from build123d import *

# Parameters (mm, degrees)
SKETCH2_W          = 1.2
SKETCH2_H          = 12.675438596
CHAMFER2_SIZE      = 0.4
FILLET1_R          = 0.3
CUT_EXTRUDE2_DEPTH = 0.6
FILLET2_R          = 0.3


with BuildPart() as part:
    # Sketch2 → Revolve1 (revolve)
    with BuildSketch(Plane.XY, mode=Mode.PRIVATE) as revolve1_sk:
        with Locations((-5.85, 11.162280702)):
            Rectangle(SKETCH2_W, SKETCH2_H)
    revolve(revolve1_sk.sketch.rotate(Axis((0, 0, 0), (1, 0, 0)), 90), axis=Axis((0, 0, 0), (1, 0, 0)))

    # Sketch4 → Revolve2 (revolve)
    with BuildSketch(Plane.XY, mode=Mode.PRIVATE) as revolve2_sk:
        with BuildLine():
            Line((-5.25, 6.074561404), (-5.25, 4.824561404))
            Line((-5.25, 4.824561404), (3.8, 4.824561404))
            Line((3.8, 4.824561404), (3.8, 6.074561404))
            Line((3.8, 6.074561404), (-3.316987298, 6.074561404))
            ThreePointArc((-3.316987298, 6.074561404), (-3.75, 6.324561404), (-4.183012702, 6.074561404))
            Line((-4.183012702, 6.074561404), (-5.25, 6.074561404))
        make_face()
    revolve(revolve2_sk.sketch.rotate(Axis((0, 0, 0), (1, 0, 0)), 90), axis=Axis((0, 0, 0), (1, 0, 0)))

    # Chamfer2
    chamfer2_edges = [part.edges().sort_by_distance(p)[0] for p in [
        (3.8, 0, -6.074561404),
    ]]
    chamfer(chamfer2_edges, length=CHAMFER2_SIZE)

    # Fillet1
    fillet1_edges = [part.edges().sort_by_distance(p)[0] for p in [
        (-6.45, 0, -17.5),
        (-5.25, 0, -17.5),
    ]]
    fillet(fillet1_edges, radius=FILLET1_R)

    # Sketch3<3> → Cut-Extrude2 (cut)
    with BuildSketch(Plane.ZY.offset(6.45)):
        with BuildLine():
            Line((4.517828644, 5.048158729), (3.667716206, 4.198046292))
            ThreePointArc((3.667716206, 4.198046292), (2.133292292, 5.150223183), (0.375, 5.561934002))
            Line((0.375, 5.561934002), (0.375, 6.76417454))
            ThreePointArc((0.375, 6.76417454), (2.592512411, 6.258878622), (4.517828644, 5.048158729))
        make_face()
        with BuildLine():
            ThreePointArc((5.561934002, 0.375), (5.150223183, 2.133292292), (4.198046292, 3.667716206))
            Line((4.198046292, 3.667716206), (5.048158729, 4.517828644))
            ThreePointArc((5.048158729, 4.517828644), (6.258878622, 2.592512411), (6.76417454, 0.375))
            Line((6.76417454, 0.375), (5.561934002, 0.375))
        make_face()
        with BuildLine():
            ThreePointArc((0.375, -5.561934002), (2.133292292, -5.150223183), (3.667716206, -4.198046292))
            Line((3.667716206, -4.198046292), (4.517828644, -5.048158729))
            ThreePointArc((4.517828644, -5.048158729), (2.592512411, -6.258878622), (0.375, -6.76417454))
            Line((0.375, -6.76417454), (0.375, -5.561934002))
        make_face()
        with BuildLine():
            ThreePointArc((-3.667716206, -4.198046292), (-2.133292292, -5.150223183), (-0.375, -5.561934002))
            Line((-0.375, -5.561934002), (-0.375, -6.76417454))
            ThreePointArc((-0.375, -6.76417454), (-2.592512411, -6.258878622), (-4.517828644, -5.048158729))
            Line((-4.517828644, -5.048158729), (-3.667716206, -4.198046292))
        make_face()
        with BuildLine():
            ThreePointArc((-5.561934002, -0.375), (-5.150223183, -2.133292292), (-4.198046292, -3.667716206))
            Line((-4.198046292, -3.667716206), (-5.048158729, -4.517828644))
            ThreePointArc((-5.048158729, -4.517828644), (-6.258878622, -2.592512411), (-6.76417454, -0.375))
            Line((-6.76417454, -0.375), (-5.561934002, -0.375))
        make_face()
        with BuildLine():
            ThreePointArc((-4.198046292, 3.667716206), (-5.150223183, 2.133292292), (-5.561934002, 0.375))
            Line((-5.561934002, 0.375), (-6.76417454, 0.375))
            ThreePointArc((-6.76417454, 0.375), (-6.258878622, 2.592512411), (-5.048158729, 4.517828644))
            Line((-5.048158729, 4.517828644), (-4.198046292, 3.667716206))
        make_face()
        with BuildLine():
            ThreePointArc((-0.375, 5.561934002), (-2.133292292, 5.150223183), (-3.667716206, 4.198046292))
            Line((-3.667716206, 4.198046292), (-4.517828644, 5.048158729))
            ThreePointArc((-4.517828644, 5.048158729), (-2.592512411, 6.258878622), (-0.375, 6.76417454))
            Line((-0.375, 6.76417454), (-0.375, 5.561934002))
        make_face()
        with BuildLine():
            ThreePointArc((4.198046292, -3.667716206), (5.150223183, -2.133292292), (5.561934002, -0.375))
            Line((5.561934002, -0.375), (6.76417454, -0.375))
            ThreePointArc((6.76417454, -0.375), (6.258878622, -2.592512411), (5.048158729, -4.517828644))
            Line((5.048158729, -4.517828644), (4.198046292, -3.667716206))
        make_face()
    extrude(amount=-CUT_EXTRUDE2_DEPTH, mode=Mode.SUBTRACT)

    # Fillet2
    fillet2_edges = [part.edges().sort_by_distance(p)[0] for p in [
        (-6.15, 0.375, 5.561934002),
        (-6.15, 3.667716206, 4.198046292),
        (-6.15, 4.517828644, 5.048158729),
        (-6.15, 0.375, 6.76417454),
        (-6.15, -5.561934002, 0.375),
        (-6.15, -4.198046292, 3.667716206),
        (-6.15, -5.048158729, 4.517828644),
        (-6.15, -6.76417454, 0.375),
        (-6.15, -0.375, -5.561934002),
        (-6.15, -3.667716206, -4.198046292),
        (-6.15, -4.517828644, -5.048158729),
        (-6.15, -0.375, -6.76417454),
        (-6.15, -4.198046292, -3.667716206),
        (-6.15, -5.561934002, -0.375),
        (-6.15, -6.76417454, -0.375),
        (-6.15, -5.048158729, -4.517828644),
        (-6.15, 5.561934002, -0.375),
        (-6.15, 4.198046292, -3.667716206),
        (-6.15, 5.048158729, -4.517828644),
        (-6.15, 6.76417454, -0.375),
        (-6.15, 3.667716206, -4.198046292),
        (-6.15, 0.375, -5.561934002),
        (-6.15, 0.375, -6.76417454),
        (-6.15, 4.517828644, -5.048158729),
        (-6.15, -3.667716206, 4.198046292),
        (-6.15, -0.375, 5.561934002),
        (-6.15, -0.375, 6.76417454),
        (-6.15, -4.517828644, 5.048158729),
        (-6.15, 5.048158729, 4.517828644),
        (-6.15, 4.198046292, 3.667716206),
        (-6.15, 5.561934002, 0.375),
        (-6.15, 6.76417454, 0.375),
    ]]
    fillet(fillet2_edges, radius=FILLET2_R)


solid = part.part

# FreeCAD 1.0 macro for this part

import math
import FreeCAD as App
import Part
import Sketcher

V = App.Vector


def edges_at(feature, points):
    """Names of the edges that pass closest to the given points."""
    edges = feature.Shape.Edges
    near = lambda p: min(range(len(edges)), key=lambda i: edges[i].distToShape(Part.Vertex(*p))[0])
    return sorted({f"Edge{near(p) + 1}" for p in points})


def add_polygon(sketch, points):
    """Adds a closed chain of lines whose ends are joined by coincident constraints."""
    first, n = sketch.GeometryCount, len(points)
    for a, b in zip(points, points[1:] + points[:1]):
        sketch.addGeometry(Part.LineSegment(App.Vector(*a, 0), App.Vector(*b, 0)), False)
    for i in range(n):
        sketch.addConstraint(Sketcher.Constraint("Coincident", first + i, 2, first + (i + 1) % n, 1))

doc = App.newDocument("Part")
body = doc.addObject("PartDesign::Body", "Body")

# Sketch on XY plane
sketch1 = doc.addObject("Sketcher::SketchObject", "Sketch")
body.addObject(sketch1)
sketch1.AttachmentSupport = (doc.XY_Plane, [""])
sketch1.MapMode = "FlatFace"
add_polygon(sketch1, [(-6.5, 17.5), (-6.5, 4.8), (-5.2, 4.8), (-5.2, 17.5)])  # lines 0-3
sketch1.addConstraint(Sketcher.Constraint("Vertical", 0))
sketch1.addConstraint(Sketcher.Constraint("Horizontal", 1))
sketch1.addConstraint(Sketcher.Constraint("Vertical", 2))
sketch1.addConstraint(Sketcher.Constraint("Horizontal", 3))
sketch1.addConstraint(Sketcher.Constraint("DistanceX", 1, 1, 1, 2, 1.2))
sketch1.addConstraint(Sketcher.Constraint("DistanceY", -1, 1, 2, 2, 17.5))
sketch1.addConstraint(Sketcher.Constraint("DistanceX", 0, 2, -1, 1, 6.45))
sketch1.addConstraint(Sketcher.Constraint("DistanceY", 0, 2, 0, 1, 12.675439))
revolution = doc.addObject("PartDesign::Revolution", "Revolution")
body.addObject(revolution)
revolution.Profile = sketch1
revolution.ReferenceAxis = (sketch1, ["H_Axis"])
revolution.Angle = 360

# Sketch on XY plane
sketch2 = doc.addObject("Sketcher::SketchObject", "Sketch001")
body.addObject(sketch2)
sketch2.AttachmentSupport = (doc.XY_Plane, [""])
sketch2.MapMode = "FlatFace"
sketch2.addGeometry(Part.LineSegment(V(-5.2, 6.1, 0), V(-5.2, 4.8, 0)), False)
sketch2.addGeometry(Part.LineSegment(V(-5.2, 4.8, 0), V(3.8, 4.8, 0)), False)
sketch2.addGeometry(Part.LineSegment(V(3.8, 4.8, 0), V(3.8, 6.1, 0)), False)
sketch2.addGeometry(Part.LineSegment(V(3.8, 6.1, 0), V(-3.3, 6.1, 0)), False)
sketch2.addGeometry(Part.ArcOfCircle(Part.Circle(V(-3.8, 5.8, 0), V(0, 0, 1), 0.5), math.radians(30), math.radians(150)), False)
sketch2.addGeometry(Part.LineSegment(V(-4.2, 6.1, 0), V(-5.2, 6.1, 0)), False)
sketch2.addConstraint(Sketcher.Constraint("Coincident", 0, 2, 1, 1))
sketch2.addConstraint(Sketcher.Constraint("Coincident", 1, 2, 2, 1))
sketch2.addConstraint(Sketcher.Constraint("Coincident", 2, 2, 3, 1))
sketch2.addConstraint(Sketcher.Constraint("Coincident", 3, 2, 4, 1))
sketch2.addConstraint(Sketcher.Constraint("Coincident", 4, 2, 5, 1))
sketch2.addConstraint(Sketcher.Constraint("Coincident", 5, 2, 0, 1))
sketch2.addConstraint(Sketcher.Constraint("Vertical", 0))
sketch2.addConstraint(Sketcher.Constraint("Horizontal", 1))
sketch2.addConstraint(Sketcher.Constraint("Vertical", 2))
sketch2.addConstraint(Sketcher.Constraint("Horizontal", 3))
sketch2.addConstraint(Sketcher.Constraint("Horizontal", 5))
sketch2.addConstraint(Sketcher.Constraint("Horizontal", 3, 2, 4, 2))
sketch2.addConstraint(Sketcher.Constraint("Radius", 4, 0.5))
sketch2.addConstraint(Sketcher.Constraint("DistanceY", 0, 2, 4, 3, 1.0))
sketch2.addConstraint(Sketcher.Constraint("DistanceX", 1, 1, 1, 2, 9.05))
sketch2.addConstraint(Sketcher.Constraint("DistanceY", 0, 2, 0, 1, 1.25))
sketch2.addConstraint(Sketcher.Constraint("DistanceX", -1, 1, 1, 2, 3.8))
sketch2.addConstraint(Sketcher.Constraint("DistanceX", 0, 2, 4, 3, 1.5))
sketch2.addConstraint(Sketcher.Constraint("DistanceY", -1, 1, 4, 3, 5.824561))
revolution2 = doc.addObject("PartDesign::Revolution", "Revolution001")
body.addObject(revolution2)
revolution2.Profile = sketch2
revolution2.ReferenceAxis = (sketch2, ["H_Axis"])
revolution2.Angle = 360
doc.recompute()

chamfer = doc.addObject("PartDesign::Chamfer", "Chamfer")
body.addObject(chamfer)
chamfer.Base = (revolution2, edges_at(revolution2, [(3.8, 0, -6.075)]))
chamfer.Size = 0.4
doc.recompute()

fillet = doc.addObject("PartDesign::Fillet", "Fillet")
body.addObject(fillet)
fillet.Base = (chamfer, edges_at(chamfer, [(-6.45, 0, -17.5), (-5.25, 0, -17.5)]))
fillet.Radius = 0.3

# Sketch on YZ plane
sketch3 = doc.addObject("Sketcher::SketchObject", "Sketch002")
body.addObject(sketch3)
sketch3.AttachmentSupport = (doc.YZ_Plane, [""])
sketch3.MapMode = "FlatFace"
sketch3.AttachmentOffset = App.Placement(V(0, 0, -6.45), App.Rotation())
sketch3.addGeometry(Part.LineSegment(V(4.198046, 3.667716, 0), V(5.048159, 4.517829, 0)), False)
sketch3.addGeometry(Part.ArcOfCircle(Part.Circle(V(0, 0, 0), V(0, 0, 1), 6.774561), math.radians(3.17318), math.radians(41.82682)), False)
sketch3.addGeometry(Part.LineSegment(V(6.764175, 0.375, 0), V(5.561934, 0.375, 0)), False)
sketch3.addGeometry(Part.ArcOfCircle(Part.Circle(V(0, 0, 0), V(0, 0, 1), 5.574561), math.radians(3.857192), math.radians(41.142808)), False)
sketch3.addGeometry(Part.ArcOfCircle(Part.Circle(V(0, 0, 0), V(0, 0, 1), 5.574561), math.radians(48.857192), math.radians(86.142808)), False)
sketch3.addGeometry(Part.LineSegment(V(0.375, 5.561934, 0), V(0.375, 6.764175, 0)), False)
sketch3.addGeometry(Part.ArcOfCircle(Part.Circle(V(0, 0, 0), V(0, 0, 1), 6.774561), math.radians(48.17318), math.radians(86.82682)), False)
sketch3.addGeometry(Part.LineSegment(V(4.517829, 5.048159, 0), V(3.667716, 4.198046, 0)), False)
sketch3.addGeometry(Part.ArcOfCircle(Part.Circle(V(0, 0, 0), V(0, 0, 1), 5.574561), math.radians(138.857192), math.radians(176.142808)), False)
sketch3.addGeometry(Part.LineSegment(V(-5.561934, 0.375, 0), V(-6.764175, 0.375, 0)), False)
sketch3.addGeometry(Part.ArcOfCircle(Part.Circle(V(0, 0, 0), V(0, 0, 1), 6.774561), math.radians(138.17318), math.radians(176.82682)), False)
sketch3.addGeometry(Part.LineSegment(V(-5.048159, 4.517829, 0), V(-4.198046, 3.667716, 0)), False)
sketch3.addGeometry(Part.ArcOfCircle(Part.Circle(V(0, 0, 0), V(0, 0, 1), 5.574561), math.radians(-176.142808), math.radians(-138.857192)), False)
sketch3.addGeometry(Part.LineSegment(V(-4.198046, -3.667716, 0), V(-5.048159, -4.517829, 0)), False)
sketch3.addGeometry(Part.ArcOfCircle(Part.Circle(V(0, 0, 0), V(0, 0, 1), 6.774561), math.radians(-176.82682), math.radians(-138.17318)), False)
sketch3.addGeometry(Part.LineSegment(V(-6.764175, -0.375, 0), V(-5.561934, -0.375, 0)), False)
sketch3.addGeometry(Part.ArcOfCircle(Part.Circle(V(0, 0, 0), V(0, 0, 1), 5.574561), math.radians(-131.142808), math.radians(-93.857192)), False)
sketch3.addGeometry(Part.LineSegment(V(-0.375, -5.561934, 0), V(-0.375, -6.764175, 0)), False)
sketch3.addGeometry(Part.ArcOfCircle(Part.Circle(V(0, 0, 0), V(0, 0, 1), 6.774561), math.radians(-131.82682), math.radians(-93.17318)), False)
sketch3.addGeometry(Part.LineSegment(V(-4.517829, -5.048159, 0), V(-3.667716, -4.198046, 0)), False)
sketch3.addGeometry(Part.ArcOfCircle(Part.Circle(V(0, 0, 0), V(0, 0, 1), 5.574561), math.radians(-86.142808), math.radians(-48.857192)), False)
sketch3.addGeometry(Part.LineSegment(V(3.667716, -4.198046, 0), V(4.517829, -5.048159, 0)), False)
sketch3.addGeometry(Part.ArcOfCircle(Part.Circle(V(0, 0, 0), V(0, 0, 1), 6.774561), math.radians(-86.82682), math.radians(-48.17318)), False)
sketch3.addGeometry(Part.LineSegment(V(0.375, -6.764175, 0), V(0.375, -5.561934, 0)), False)
sketch3.addGeometry(Part.ArcOfCircle(Part.Circle(V(0, 0, 0), V(0, 0, 1), 5.574561), math.radians(-41.142808), math.radians(-3.857192)), False)
sketch3.addGeometry(Part.LineSegment(V(5.561934, -0.375, 0), V(6.764175, -0.375, 0)), False)
sketch3.addGeometry(Part.ArcOfCircle(Part.Circle(V(0, 0, 0), V(0, 0, 1), 6.774561), math.radians(-41.82682), math.radians(-3.17318)), False)
sketch3.addGeometry(Part.LineSegment(V(5.048159, -4.517829, 0), V(4.198046, -3.667716, 0)), False)
sketch3.addGeometry(Part.ArcOfCircle(Part.Circle(V(0, 0, 0), V(0, 0, 1), 5.574561), math.radians(93.857192), math.radians(131.142808)), False)
sketch3.addGeometry(Part.LineSegment(V(-3.667716, 4.198046, 0), V(-4.517829, 5.048159, 0)), False)
sketch3.addGeometry(Part.ArcOfCircle(Part.Circle(V(0, 0, 0), V(0, 0, 1), 6.774561), math.radians(93.17318), math.radians(131.82682)), False)
sketch3.addGeometry(Part.LineSegment(V(-0.375, 6.764175, 0), V(-0.375, 5.561934, 0)), False)
sketch3.addConstraint(Sketcher.Constraint("Coincident", 0, 2, 1, 2))
sketch3.addConstraint(Sketcher.Constraint("Coincident", 1, 1, 2, 1))
sketch3.addConstraint(Sketcher.Constraint("Coincident", 2, 2, 3, 1))
sketch3.addConstraint(Sketcher.Constraint("Coincident", 3, 2, 0, 1))
sketch3.addConstraint(Sketcher.Constraint("Coincident", 4, 2, 5, 1))
sketch3.addConstraint(Sketcher.Constraint("Coincident", 5, 2, 6, 2))
sketch3.addConstraint(Sketcher.Constraint("Coincident", 6, 1, 7, 1))
sketch3.addConstraint(Sketcher.Constraint("Coincident", 7, 2, 4, 1))
sketch3.addConstraint(Sketcher.Constraint("Coincident", 8, 2, 9, 1))
sketch3.addConstraint(Sketcher.Constraint("Coincident", 9, 2, 10, 2))
sketch3.addConstraint(Sketcher.Constraint("Coincident", 10, 1, 11, 1))
sketch3.addConstraint(Sketcher.Constraint("Coincident", 11, 2, 8, 1))
sketch3.addConstraint(Sketcher.Constraint("Coincident", 12, 2, 13, 1))
sketch3.addConstraint(Sketcher.Constraint("Coincident", 13, 2, 14, 2))
sketch3.addConstraint(Sketcher.Constraint("Coincident", 14, 1, 15, 1))
sketch3.addConstraint(Sketcher.Constraint("Coincident", 15, 2, 12, 1))
sketch3.addConstraint(Sketcher.Constraint("Coincident", 16, 2, 17, 1))
sketch3.addConstraint(Sketcher.Constraint("Coincident", 17, 2, 18, 2))
sketch3.addConstraint(Sketcher.Constraint("Coincident", 18, 1, 19, 1))
sketch3.addConstraint(Sketcher.Constraint("Coincident", 19, 2, 16, 1))
sketch3.addConstraint(Sketcher.Constraint("Coincident", 20, 2, 21, 1))
sketch3.addConstraint(Sketcher.Constraint("Coincident", 21, 2, 22, 2))
sketch3.addConstraint(Sketcher.Constraint("Coincident", 22, 1, 23, 1))
sketch3.addConstraint(Sketcher.Constraint("Coincident", 23, 2, 20, 1))
sketch3.addConstraint(Sketcher.Constraint("Coincident", 24, 2, 25, 1))
sketch3.addConstraint(Sketcher.Constraint("Coincident", 25, 2, 26, 2))
sketch3.addConstraint(Sketcher.Constraint("Coincident", 26, 1, 27, 1))
sketch3.addConstraint(Sketcher.Constraint("Coincident", 27, 2, 24, 1))
sketch3.addConstraint(Sketcher.Constraint("Coincident", 28, 2, 29, 1))
sketch3.addConstraint(Sketcher.Constraint("Coincident", 29, 2, 30, 2))
sketch3.addConstraint(Sketcher.Constraint("Coincident", 30, 1, 31, 1))
sketch3.addConstraint(Sketcher.Constraint("Coincident", 31, 2, 28, 1))
sketch3.addConstraint(Sketcher.Constraint("Horizontal", 2))
sketch3.addConstraint(Sketcher.Constraint("Vertical", 5))
sketch3.addConstraint(Sketcher.Constraint("Horizontal", 9))
sketch3.addConstraint(Sketcher.Constraint("Horizontal", 15))
sketch3.addConstraint(Sketcher.Constraint("Vertical", 17))
sketch3.addConstraint(Sketcher.Constraint("Vertical", 23))
sketch3.addConstraint(Sketcher.Constraint("Horizontal", 25))
sketch3.addConstraint(Sketcher.Constraint("Vertical", 31))
sketch3.addConstraint(Sketcher.Constraint("Coincident", 1, 3, -1, 1))
sketch3.addConstraint(Sketcher.Constraint("Coincident", 3, 3, -1, 1))
sketch3.addConstraint(Sketcher.Constraint("Coincident", 4, 3, -1, 1))
sketch3.addConstraint(Sketcher.Constraint("Coincident", 6, 3, -1, 1))
sketch3.addConstraint(Sketcher.Constraint("Coincident", 8, 3, -1, 1))
sketch3.addConstraint(Sketcher.Constraint("Coincident", 10, 3, -1, 1))
sketch3.addConstraint(Sketcher.Constraint("Coincident", 12, 3, -1, 1))
sketch3.addConstraint(Sketcher.Constraint("Coincident", 14, 3, -1, 1))
sketch3.addConstraint(Sketcher.Constraint("Coincident", 16, 3, -1, 1))
sketch3.addConstraint(Sketcher.Constraint("Coincident", 18, 3, -1, 1))
sketch3.addConstraint(Sketcher.Constraint("Coincident", 20, 3, -1, 1))
sketch3.addConstraint(Sketcher.Constraint("Coincident", 22, 3, -1, 1))
sketch3.addConstraint(Sketcher.Constraint("Coincident", 24, 3, -1, 1))
sketch3.addConstraint(Sketcher.Constraint("Coincident", 26, 3, -1, 1))
sketch3.addConstraint(Sketcher.Constraint("Coincident", 28, 3, -1, 1))
sketch3.addConstraint(Sketcher.Constraint("Coincident", 30, 3, -1, 1))
sketch3.addConstraint(Sketcher.Constraint("Radius", 1, 6.774561))
sketch3.addConstraint(Sketcher.Constraint("Radius", 3, 5.574561))
sketch3.addConstraint(Sketcher.Constraint("Radius", 4, 5.574561))
sketch3.addConstraint(Sketcher.Constraint("Radius", 6, 6.774561))
sketch3.addConstraint(Sketcher.Constraint("Radius", 8, 5.574561))
sketch3.addConstraint(Sketcher.Constraint("Radius", 10, 6.774561))
sketch3.addConstraint(Sketcher.Constraint("Radius", 12, 5.574561))
sketch3.addConstraint(Sketcher.Constraint("Radius", 14, 6.774561))
sketch3.addConstraint(Sketcher.Constraint("Radius", 16, 5.574561))
sketch3.addConstraint(Sketcher.Constraint("Radius", 18, 6.774561))
sketch3.addConstraint(Sketcher.Constraint("Radius", 20, 5.574561))
sketch3.addConstraint(Sketcher.Constraint("Radius", 22, 6.774561))
sketch3.addConstraint(Sketcher.Constraint("Radius", 24, 5.574561))
sketch3.addConstraint(Sketcher.Constraint("Radius", 26, 6.774561))
sketch3.addConstraint(Sketcher.Constraint("Radius", 28, 5.574561))
sketch3.addConstraint(Sketcher.Constraint("Radius", 30, 6.774561))
sketch3.addConstraint(Sketcher.Constraint("DistanceY", 14, 1, 9, 2, 0.75))
sketch3.addConstraint(Sketcher.Constraint("DistanceX", 17, 2, 22, 1, 0.75))
sketch3.addConstraint(Sketcher.Constraint("DistanceY", 24, 2, 2, 2, 0.75))
sketch3.addConstraint(Sketcher.Constraint("DistanceX", 30, 1, 5, 2, 0.75))
sketch3.addConstraint(Sketcher.Constraint("DistanceY", -1, 1, 1, 1, 0.375))
sketch3.addConstraint(Sketcher.Constraint("DistanceX", -1, 1, 4, 2, 0.375))
sketch3.addConstraint(Sketcher.Constraint("DistanceY", -1, 1, 8, 2, 0.375))
sketch3.addConstraint(Sketcher.Constraint("DistanceX", 16, 2, -1, 1, 0.375))
sketch3.addConstraint(Sketcher.Constraint("Distance", 0, 1.202241))
sketch3.addConstraint(Sketcher.Constraint("Distance", 7, 1.202241))
sketch3.addConstraint(Sketcher.Constraint("Distance", 11, 1.202241))
sketch3.addConstraint(Sketcher.Constraint("Distance", 13, 1.202241))
sketch3.addConstraint(Sketcher.Constraint("Distance", 19, 1.202241))
sketch3.addConstraint(Sketcher.Constraint("Distance", 21, 1.202241))
sketch3.addConstraint(Sketcher.Constraint("Distance", 27, 1.202241))
sketch3.addConstraint(Sketcher.Constraint("Distance", 29, 1.202241))
sketch3.addConstraint(Sketcher.Constraint("DistanceX", -1, 1, 0, 2, 5.048159))
sketch3.addConstraint(Sketcher.Constraint("DistanceX", -1, 1, 6, 1, 4.517829))
sketch3.addConstraint(Sketcher.Constraint("DistanceX", 10, 1, -1, 1, 5.048159))
sketch3.addConstraint(Sketcher.Constraint("DistanceX", 13, 2, -1, 1, 5.048159))
sketch3.addConstraint(Sketcher.Constraint("DistanceX", 18, 1, -1, 1, 4.517829))
sketch3.addConstraint(Sketcher.Constraint("DistanceX", -1, 1, 21, 2, 4.517829))
sketch3.addConstraint(Sketcher.Constraint("DistanceX", -1, 1, 26, 1, 5.048159))
sketch3.addConstraint(Sketcher.Constraint("DistanceX", 29, 2, -1, 1, 4.517829))
pocket1 = doc.addObject("PartDesign::Pocket", "Pocket")
body.addObject(pocket1)
pocket1.Profile = sketch3
pocket1.Length = 0.6
pocket1.Reversed = True
doc.recompute()

fillet2 = doc.addObject("PartDesign::Fillet", "Fillet001")
body.addObject(fillet2)
fillet2.Base = (pocket1, edges_at(pocket1, [
    (-6.15, 0.375, 5.562),
    (-6.15, 3.668, 4.198),
    (-6.15, 4.518, 5.048),
    (-6.15, 0.375, 6.764),
    (-6.15, -5.562, 0.375),
    (-6.15, -4.198, 3.668),
    (-6.15, -5.048, 4.518),
    (-6.15, -6.764, 0.375),
    (-6.15, -0.375, -5.562),
    (-6.15, -3.668, -4.198),
    (-6.15, -4.518, -5.048),
    (-6.15, -0.375, -6.764),
    (-6.15, -4.198, -3.668),
    (-6.15, -5.562, -0.375),
    (-6.15, -6.764, -0.375),
    (-6.15, -5.048, -4.518),
    (-6.15, 5.562, -0.375),
    (-6.15, 4.198, -3.668),
    (-6.15, 5.048, -4.518),
    (-6.15, 6.764, -0.375),
    (-6.15, 3.668, -4.198),
    (-6.15, 0.375, -5.562),
    (-6.15, 0.375, -6.764),
    (-6.15, 4.518, -5.048),
    (-6.15, -3.668, 4.198),
    (-6.15, -0.375, 5.562),
    (-6.15, -0.375, 6.764),
    (-6.15, -4.518, 5.048),
    (-6.15, 5.048, 4.518),
    (-6.15, 4.198, 3.668),
    (-6.15, 5.562, 0.375),
    (-6.15, 6.764, 0.375),
]))
fillet2.Radius = 0.3

doc.recompute()
